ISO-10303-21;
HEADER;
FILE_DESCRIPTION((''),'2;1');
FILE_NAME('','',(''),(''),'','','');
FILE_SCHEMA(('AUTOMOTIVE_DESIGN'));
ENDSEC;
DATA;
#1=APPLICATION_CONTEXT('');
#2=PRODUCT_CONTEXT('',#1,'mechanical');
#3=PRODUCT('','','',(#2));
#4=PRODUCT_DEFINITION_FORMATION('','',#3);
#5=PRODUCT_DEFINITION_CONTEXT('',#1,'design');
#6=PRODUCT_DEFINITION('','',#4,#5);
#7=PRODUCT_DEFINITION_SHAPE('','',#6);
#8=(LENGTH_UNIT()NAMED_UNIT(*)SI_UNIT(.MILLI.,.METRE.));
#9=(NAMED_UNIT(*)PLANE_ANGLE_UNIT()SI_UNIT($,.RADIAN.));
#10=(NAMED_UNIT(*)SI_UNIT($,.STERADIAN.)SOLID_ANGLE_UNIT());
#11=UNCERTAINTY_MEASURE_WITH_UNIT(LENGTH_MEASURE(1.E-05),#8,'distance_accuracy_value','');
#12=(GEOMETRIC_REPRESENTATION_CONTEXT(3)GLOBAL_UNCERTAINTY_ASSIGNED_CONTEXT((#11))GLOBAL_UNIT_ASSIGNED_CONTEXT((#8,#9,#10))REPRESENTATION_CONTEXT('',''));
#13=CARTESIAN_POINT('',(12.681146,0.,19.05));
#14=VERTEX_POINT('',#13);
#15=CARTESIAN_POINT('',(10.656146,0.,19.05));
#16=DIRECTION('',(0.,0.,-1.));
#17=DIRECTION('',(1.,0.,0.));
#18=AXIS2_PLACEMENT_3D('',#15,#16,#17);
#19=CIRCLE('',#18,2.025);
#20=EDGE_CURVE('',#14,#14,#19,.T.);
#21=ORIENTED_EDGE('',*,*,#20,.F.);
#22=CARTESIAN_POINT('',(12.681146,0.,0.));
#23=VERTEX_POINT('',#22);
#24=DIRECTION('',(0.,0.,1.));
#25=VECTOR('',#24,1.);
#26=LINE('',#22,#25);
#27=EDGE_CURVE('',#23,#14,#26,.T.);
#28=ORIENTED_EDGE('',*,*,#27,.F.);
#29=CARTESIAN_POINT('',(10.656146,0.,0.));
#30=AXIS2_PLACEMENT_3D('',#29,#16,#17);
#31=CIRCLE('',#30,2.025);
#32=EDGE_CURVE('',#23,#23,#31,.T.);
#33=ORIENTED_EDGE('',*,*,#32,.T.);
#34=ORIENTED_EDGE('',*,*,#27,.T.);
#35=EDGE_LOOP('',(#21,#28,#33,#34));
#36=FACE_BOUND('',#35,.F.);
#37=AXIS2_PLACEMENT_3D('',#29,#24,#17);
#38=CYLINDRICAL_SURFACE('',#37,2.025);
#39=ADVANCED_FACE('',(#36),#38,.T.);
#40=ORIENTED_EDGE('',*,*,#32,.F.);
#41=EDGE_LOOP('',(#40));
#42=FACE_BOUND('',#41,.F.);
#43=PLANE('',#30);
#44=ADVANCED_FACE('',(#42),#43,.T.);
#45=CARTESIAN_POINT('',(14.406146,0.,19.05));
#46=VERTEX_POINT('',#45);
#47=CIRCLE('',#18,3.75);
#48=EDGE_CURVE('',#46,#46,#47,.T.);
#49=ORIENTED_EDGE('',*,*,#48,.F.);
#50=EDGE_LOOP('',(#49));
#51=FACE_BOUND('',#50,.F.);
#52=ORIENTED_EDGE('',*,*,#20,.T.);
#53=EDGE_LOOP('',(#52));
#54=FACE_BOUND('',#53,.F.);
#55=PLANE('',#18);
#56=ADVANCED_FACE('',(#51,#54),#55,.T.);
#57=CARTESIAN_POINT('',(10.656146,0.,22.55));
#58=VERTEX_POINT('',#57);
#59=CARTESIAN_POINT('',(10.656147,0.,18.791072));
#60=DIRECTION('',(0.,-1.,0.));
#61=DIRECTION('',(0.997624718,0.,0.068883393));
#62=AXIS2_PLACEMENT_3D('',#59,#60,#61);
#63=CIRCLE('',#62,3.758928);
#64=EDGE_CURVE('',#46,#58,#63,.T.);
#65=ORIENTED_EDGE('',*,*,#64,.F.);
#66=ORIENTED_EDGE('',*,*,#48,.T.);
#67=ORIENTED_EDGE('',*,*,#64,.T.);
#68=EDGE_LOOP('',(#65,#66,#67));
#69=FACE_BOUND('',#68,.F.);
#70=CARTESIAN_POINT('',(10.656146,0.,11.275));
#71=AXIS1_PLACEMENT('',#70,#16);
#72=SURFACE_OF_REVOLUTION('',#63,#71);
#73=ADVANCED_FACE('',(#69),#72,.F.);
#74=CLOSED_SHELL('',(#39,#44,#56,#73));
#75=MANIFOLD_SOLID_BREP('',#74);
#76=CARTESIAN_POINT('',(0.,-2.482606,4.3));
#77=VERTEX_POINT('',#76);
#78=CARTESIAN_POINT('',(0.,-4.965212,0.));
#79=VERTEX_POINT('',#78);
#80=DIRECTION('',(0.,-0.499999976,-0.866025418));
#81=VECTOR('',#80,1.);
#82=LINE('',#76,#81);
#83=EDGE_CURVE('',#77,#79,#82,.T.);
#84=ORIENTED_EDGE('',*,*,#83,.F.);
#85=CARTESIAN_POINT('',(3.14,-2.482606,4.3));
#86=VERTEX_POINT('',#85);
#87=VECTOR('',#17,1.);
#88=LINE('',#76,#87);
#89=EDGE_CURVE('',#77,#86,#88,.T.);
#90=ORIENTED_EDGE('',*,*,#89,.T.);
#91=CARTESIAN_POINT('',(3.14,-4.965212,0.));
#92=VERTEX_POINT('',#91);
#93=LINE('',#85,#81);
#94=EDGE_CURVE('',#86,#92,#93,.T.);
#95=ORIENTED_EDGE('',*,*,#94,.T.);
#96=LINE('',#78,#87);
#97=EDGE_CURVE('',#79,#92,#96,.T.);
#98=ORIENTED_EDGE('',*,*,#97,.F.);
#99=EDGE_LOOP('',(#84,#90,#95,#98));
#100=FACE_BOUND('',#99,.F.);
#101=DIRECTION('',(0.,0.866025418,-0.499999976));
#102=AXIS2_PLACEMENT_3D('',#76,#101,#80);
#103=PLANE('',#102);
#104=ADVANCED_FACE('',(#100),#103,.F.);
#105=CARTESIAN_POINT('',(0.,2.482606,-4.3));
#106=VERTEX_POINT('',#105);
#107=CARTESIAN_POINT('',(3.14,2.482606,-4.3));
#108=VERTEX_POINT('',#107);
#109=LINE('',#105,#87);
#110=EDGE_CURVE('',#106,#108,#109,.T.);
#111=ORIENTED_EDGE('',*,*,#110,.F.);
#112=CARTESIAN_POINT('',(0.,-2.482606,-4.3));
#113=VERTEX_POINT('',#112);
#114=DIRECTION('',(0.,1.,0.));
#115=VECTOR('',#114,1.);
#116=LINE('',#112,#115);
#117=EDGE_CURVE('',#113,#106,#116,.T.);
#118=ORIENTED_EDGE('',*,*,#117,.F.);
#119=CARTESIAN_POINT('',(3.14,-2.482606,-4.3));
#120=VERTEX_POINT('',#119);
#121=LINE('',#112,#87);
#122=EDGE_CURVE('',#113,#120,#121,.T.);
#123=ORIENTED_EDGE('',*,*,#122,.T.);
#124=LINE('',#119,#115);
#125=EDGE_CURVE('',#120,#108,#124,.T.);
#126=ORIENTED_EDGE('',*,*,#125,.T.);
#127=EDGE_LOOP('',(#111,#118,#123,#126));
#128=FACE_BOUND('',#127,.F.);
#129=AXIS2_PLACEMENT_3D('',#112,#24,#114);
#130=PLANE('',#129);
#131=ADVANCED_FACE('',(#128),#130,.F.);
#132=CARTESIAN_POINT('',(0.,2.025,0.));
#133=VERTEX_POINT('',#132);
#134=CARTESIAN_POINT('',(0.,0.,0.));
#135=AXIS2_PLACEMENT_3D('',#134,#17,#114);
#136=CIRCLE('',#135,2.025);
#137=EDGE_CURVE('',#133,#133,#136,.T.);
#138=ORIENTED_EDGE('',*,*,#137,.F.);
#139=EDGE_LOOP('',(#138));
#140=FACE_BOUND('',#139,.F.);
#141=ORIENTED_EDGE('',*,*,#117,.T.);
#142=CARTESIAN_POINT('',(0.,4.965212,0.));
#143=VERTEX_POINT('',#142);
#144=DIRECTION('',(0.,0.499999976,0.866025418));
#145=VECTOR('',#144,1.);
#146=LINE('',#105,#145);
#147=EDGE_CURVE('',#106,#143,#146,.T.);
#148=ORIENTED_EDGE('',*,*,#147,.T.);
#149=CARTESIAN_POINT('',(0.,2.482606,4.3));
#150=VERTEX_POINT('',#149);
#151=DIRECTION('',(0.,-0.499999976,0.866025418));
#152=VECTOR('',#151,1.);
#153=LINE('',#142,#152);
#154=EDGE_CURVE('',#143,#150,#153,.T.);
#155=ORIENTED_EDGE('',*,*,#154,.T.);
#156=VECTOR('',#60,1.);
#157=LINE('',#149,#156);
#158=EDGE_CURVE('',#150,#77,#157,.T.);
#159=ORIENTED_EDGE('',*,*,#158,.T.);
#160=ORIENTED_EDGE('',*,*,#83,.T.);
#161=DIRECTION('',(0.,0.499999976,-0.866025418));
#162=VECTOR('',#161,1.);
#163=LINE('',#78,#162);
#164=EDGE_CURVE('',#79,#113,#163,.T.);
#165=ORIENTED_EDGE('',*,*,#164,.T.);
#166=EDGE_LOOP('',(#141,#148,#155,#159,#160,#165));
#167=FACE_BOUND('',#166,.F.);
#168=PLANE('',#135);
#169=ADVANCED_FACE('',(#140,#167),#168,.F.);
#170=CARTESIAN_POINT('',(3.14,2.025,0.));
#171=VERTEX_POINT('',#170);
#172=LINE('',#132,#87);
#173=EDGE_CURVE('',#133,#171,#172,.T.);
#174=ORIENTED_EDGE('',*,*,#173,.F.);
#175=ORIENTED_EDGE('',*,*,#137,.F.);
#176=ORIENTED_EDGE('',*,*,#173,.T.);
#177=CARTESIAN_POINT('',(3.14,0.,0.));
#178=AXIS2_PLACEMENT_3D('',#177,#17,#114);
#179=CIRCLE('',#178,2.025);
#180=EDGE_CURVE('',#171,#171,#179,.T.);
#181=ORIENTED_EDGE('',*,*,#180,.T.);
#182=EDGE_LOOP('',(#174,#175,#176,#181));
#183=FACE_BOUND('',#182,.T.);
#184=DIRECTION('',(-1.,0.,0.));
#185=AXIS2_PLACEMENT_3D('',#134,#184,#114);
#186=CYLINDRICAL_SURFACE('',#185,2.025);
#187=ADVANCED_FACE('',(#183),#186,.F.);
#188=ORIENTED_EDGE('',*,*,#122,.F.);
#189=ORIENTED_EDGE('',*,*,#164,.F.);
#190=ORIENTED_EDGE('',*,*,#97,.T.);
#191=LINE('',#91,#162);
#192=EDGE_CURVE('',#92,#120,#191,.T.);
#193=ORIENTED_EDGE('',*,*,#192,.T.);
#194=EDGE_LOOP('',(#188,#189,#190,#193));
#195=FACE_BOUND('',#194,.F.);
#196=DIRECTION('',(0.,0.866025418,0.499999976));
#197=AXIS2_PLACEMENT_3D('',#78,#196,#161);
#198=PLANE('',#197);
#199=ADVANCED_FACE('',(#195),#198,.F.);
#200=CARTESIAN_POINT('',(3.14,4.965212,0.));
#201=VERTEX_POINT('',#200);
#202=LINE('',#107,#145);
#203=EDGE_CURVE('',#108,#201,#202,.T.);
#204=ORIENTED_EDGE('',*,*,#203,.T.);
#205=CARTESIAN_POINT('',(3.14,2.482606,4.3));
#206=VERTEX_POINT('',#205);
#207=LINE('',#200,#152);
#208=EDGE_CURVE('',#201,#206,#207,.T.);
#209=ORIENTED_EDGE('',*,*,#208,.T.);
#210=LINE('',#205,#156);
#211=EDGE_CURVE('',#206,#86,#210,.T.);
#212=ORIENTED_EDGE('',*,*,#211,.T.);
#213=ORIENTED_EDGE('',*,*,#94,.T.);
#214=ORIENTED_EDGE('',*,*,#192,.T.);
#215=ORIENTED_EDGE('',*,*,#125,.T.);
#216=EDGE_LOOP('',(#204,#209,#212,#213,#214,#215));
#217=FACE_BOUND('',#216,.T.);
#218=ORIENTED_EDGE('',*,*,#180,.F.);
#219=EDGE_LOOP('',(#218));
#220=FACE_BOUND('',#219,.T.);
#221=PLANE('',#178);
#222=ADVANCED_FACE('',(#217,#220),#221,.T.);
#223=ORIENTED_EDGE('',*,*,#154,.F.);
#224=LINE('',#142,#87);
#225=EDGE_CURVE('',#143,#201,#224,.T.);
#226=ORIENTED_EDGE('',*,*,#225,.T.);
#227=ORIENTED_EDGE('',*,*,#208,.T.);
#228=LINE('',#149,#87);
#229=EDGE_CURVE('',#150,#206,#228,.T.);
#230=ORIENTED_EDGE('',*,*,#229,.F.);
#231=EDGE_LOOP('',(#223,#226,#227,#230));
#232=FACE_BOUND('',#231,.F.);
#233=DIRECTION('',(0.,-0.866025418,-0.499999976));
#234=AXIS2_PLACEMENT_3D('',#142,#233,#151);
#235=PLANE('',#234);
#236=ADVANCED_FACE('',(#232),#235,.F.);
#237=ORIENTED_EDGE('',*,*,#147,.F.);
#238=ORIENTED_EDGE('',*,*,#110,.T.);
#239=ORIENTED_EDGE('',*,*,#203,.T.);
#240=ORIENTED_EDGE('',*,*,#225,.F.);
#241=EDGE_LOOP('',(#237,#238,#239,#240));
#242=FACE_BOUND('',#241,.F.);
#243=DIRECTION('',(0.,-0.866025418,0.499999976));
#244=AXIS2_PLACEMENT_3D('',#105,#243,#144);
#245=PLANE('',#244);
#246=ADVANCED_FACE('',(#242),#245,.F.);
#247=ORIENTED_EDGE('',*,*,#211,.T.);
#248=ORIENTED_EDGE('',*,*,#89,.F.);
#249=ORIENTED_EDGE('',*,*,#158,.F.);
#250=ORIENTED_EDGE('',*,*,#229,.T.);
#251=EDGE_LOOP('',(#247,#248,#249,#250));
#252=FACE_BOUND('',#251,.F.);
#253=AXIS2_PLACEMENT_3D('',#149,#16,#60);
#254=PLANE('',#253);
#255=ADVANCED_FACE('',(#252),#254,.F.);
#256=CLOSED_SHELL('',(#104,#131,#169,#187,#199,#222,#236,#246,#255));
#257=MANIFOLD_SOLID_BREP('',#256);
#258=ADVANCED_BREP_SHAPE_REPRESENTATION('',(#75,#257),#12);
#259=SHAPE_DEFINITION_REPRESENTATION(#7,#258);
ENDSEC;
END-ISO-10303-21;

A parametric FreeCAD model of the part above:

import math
import FreeCAD as App
import Part
import Sketcher
from FreeCAD import Vector
Q = App.Units.Quantity


def add_polygon(sketch, points):
    """Adds a closed chain of lines whose ends are joined by coincident constraints."""
    first, n = sketch.GeometryCount, len(points)
    for a, b in zip(points, points[1:] + points[:1]):
        sketch.addGeometry(Part.LineSegment(App.Vector(*a, 0), App.Vector(*b, 0)), False)
    for i in range(n):
        sketch.addConstraint(Sketcher.Constraint("Coincident", first + i, 2, first + (i + 1) % n, 1))

doc = App.newDocument("Part")
params = doc.addObject("Spreadsheet::Sheet", "Params")
for row, (alias, value) in enumerate([
    ("pad1_length", "3.14 mm"),
    ("sketch2_height", "0.75 in"),
    ("revolution_angle", "360 deg"),
], start=1):
    params.set(f"A{row}", alias)
    params.set(f"B{row}", "=" + value)
    params.setAlias(f"B{row}", alias)

body = doc.addObject("PartDesign::Body", "Body")

sketch1 = doc.addObject("Sketcher::SketchObject", "Sketch")
body.addObject(sketch1)
sketch1.AttachmentSupport = (doc.YZ_Plane, [""])
sketch1.MapMode = "FlatFace"
add_polygon(sketch1, [(-2.5, 4.3), (-5, 0), (-2.5, -4.3), (2.5, -4.3), (5, 0), (2.5, 4.3)])
sketch1.addGeometry(Part.Circle(Vector(0, 0, 0), Vector(0, 0, 1), 2), False)
sketch1.addConstraint(Sketcher.Constraint("Horizontal", 2))
sketch1.addConstraint(Sketcher.Constraint("Horizontal", 5))
sketch1.addConstraint(Sketcher.Constraint("Coincident", 6, 3, -1, 1))
sketch1.addConstraint(Sketcher.Constraint("Symmetric", 0, 2, 3, 2, -1, 1))
sketch1.addConstraint(Sketcher.Constraint("Symmetric", 1, 2, 4, 2, -1, 1))
sketch1.addConstraint(Sketcher.Constraint("PointOnObject", 0, 2, -1))
sketch1.addConstraint(Sketcher.Constraint("Parallel", 0, 3))
sketch1.addConstraint(Sketcher.Constraint("Vertical", 2, 2, 4, 2))
sketch1.addConstraint(Sketcher.Constraint("Angle", 0, Q("-119.999998 deg")))
sketch1.addConstraint(Sketcher.Constraint("Diameter", 6, 4.05))
sketch1.addConstraint(Sketcher.Constraint("DistanceY", 1, 2, -1, 1, 4.3))
sketch1.addConstraint(Sketcher.Constraint("DistanceX", 2, 1, 2, 2, 4.965212))
pad1 = doc.addObject("PartDesign::Pad", "Pad")
body.addObject(pad1)
pad1.Profile = sketch1
pad1.setExpression("Length", "Params.pad1_length")
body2 = doc.addObject("PartDesign::Body", "Body001")

sketch2 = doc.addObject("Sketcher::SketchObject", "Sketch001")
body2.addObject(sketch2)
sketch2.AttachmentSupport = (doc.getObject("XZ_Plane001"), [""])
sketch2.MapMode = "FlatFace"
sketch2.addGeometry(Part.LineSegment(Vector(10.7, 22.6, 0), Vector(10.7, 0, 0)), False)
sketch2.addGeometry(Part.LineSegment(Vector(10.7, 0, 0), Vector(12.7, 0, 0)), False)
sketch2.addGeometry(Part.LineSegment(Vector(12.7, 0, 0), Vector(12.7, 19.1, 0)), False)
sketch2.addGeometry(Part.LineSegment(Vector(12.7, 19.1, 0), Vector(14.4, 19.1, 0)), False)
sketch2.addGeometry(Part.ArcOfCircle(Part.Circle(Vector(10.7, 18.8, 0), Vector(0, 0, 1), 3.8), math.radians(4), math.radians(90)), False)
sketch2.addGeometry(Part.LineSegment(Vector(10.7, 22.6, 0), Vector(10.7, 0, 0)), True)
sketch2.addConstraint(Sketcher.Constraint("Coincident", 0, 2, 1, 1))
sketch2.addConstraint(Sketcher.Constraint("Coincident", 1, 2, 2, 1))
sketch2.addConstraint(Sketcher.Constraint("Coincident", 2, 2, 3, 1))
sketch2.addConstraint(Sketcher.Constraint("Coincident", 3, 2, 4, 1))
sketch2.addConstraint(Sketcher.Constraint("Coincident", 4, 2, 0, 1))
sketch2.addConstraint(Sketcher.Constraint("Vertical", 0))
sketch2.addConstraint(Sketcher.Constraint("Horizontal", 1))
sketch2.addConstraint(Sketcher.Constraint("Vertical", 2))
sketch2.addConstraint(Sketcher.Constraint("Horizontal", 3))
sketch2.addConstraint(Sketcher.Constraint("Vertical", 5))
sketch2.addConstraint(Sketcher.Constraint("Coincident", 5, 1, 4, 2))
sketch2.addConstraint(Sketcher.Constraint("PointOnObject", 0, 2, -1))
sketch2.addConstraint(Sketcher.Constraint("PointOnObject", 5, 2, -1))
sketch2.addConstraint(Sketcher.Constraint("Vertical", 4, 3, 0, 2))
sketch2.addConstraint(Sketcher.Constraint("DistanceY", 2, 1, 2, 2, Q("0.75 in")))
sketch2.addConstraint(Sketcher.Constraint("DistanceX", 1, 1, 1, 2, 2.025))
sketch2.addConstraint(Sketcher.Constraint("DistanceX", 3, 1, 3, 2, 1.725))
sketch2.addConstraint(Sketcher.Constraint("DistanceY", 0, 2, 0, 1, 22.55))
sketch2.addConstraint(Sketcher.Constraint("DistanceX", -1, 1, 4, 3, 10.656147))
sketch2.setExpression("Constraints[14]", "Params.sketch2_height")
revolution = doc.addObject("PartDesign::Revolution", "Revolution")
body2.addObject(revolution)
revolution.Profile = sketch2
revolution.ReferenceAxis = (sketch2, ["Axis0"])
revolution.setExpression("Angle", "Params.revolution_angle")

doc.recompute()
